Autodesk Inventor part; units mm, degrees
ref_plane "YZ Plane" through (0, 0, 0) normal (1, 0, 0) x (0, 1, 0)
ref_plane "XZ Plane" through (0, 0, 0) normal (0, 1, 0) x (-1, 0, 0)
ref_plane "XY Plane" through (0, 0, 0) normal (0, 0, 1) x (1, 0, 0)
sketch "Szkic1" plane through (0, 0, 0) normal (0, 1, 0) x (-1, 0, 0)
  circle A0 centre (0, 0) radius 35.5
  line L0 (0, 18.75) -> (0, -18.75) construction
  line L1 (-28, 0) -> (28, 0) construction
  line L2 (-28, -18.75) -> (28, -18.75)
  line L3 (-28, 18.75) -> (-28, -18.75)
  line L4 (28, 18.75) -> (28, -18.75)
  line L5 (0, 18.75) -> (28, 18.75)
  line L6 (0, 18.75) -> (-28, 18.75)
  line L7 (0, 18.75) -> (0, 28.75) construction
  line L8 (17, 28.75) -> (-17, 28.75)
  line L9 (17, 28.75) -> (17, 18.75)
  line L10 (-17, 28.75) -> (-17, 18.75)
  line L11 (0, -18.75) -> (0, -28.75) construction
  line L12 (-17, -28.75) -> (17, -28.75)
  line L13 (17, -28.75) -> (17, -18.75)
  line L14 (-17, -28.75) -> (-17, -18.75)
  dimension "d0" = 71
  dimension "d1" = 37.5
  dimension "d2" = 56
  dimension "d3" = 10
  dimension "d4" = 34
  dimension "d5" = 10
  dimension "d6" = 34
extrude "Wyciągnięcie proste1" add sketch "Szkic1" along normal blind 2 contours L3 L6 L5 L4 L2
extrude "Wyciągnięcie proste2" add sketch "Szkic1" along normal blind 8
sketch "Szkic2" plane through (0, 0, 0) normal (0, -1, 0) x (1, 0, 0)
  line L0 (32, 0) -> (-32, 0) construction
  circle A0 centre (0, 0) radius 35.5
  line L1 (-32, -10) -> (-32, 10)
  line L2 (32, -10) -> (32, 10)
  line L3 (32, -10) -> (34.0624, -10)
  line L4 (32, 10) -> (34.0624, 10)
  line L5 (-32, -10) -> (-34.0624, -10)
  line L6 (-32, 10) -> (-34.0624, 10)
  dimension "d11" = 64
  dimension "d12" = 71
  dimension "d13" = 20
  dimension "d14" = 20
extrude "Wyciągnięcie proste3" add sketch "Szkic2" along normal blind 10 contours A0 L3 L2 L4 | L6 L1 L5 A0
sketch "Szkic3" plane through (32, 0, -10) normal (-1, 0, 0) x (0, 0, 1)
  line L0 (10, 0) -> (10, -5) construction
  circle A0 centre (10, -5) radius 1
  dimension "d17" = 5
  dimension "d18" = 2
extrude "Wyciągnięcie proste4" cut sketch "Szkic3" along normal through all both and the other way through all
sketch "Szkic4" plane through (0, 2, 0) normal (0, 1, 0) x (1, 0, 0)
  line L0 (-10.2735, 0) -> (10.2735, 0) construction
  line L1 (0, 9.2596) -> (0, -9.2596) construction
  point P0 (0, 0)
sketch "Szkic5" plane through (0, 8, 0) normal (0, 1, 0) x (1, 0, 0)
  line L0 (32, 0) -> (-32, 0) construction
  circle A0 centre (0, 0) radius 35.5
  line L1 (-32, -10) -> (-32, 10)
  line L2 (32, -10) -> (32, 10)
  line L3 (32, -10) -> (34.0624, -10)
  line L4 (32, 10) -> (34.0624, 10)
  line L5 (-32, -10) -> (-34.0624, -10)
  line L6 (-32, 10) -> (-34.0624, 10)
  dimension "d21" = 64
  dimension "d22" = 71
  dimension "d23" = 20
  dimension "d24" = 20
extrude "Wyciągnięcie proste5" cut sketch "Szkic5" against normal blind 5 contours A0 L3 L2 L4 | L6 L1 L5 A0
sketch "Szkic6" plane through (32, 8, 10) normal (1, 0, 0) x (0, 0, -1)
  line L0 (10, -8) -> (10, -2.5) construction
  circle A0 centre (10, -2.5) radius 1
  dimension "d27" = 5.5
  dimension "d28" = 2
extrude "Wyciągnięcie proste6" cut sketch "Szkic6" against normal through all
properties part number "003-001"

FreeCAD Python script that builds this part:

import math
import FreeCAD as App
import Part
import Sketcher
from FreeCAD import Vector

doc = App.newDocument("Part")
params = doc.addObject("Spreadsheet::Sheet", "Params")
for row, (alias, value) in enumerate([
    ("sketch1_width", "56 mm"),
    ("sketch1_height", "37.5 mm"),
    ("pad1_length", "2 mm"),
    ("sketch2_diameter", "71 mm"),
    ("sketch2_width", "34 mm"),
    ("sketch2_height", "10 mm"),
    ("sketch2_height2", "37.5 mm"),
    ("pad2_length", "8 mm"),
    ("sketch3_radius", "35.5 mm"),
    ("sketch3_height", "20 mm"),
    ("pad3_length", "10 mm"),
    ("sketch4_diameter", "2 mm"),
    ("sketch5_radius", "35.5 mm"),
    ("sketch5_height", "20 mm"),
    ("pocket2_length", "5 mm"),
    ("sketch6_diameter", "2 mm"),
], start=1):
    params.set(f"A{row}", alias)
    params.set(f"B{row}", "=" + value)
    params.setAlias(f"B{row}", alias)

body = doc.addObject("PartDesign::Body", "Body")

# Sketch on XZ plane
sketch1 = doc.addObject("Sketcher::SketchObject", "Sketch")
body.addObject(sketch1)
sketch1.AttachmentSupport = (doc.XZ_Plane, [""])
sketch1.MapMode = "FlatFace"
sketch1.addGeometry(Part.LineSegment(Vector(28, 19, 0), Vector(28, -19, 0)), False)
sketch1.addGeometry(Part.LineSegment(Vector(28, -19, 0), Vector(-28, -19, 0)), False)
sketch1.addGeometry(Part.LineSegment(Vector(-28, -19, 0), Vector(-28, 19, 0)), False)
sketch1.addGeometry(Part.LineSegment(Vector(-28, 19, 0), Vector(28, 19, 0)), False)
sketch1.addConstraint(Sketcher.Constraint("Coincident", 0, 2, 1, 1))
sketch1.addConstraint(Sketcher.Constraint("Coincident", 1, 2, 2, 1))
sketch1.addConstraint(Sketcher.Constraint("Coincident", 2, 2, 3, 1))
sketch1.addConstraint(Sketcher.Constraint("Coincident", 3, 2, 0, 1))
sketch1.addConstraint(Sketcher.Constraint("Vertical", 0))
sketch1.addConstraint(Sketcher.Constraint("Horizontal", 1))
sketch1.addConstraint(Sketcher.Constraint("Vertical", 2))
sketch1.addConstraint(Sketcher.Constraint("Horizontal", 3))
sketch1.addConstraint(Sketcher.Constraint("Symmetric", 0, 2, 2, 2, -1, 1))
sketch1.addConstraint(Sketcher.Constraint("DistanceX", 1, 2, 1, 1, 56.0))
sketch1.addConstraint(Sketcher.Constraint("DistanceY", 0, 2, 0, 1, 37.5))
sketch1.setExpression("Constraints[9]", "Params.sketch1_width")
sketch1.setExpression("Constraints[10]", "Params.sketch1_height")
pad1 = doc.addObject("PartDesign::Pad", "Pad")
body.addObject(pad1)
pad1.Profile = sketch1
pad1.setExpression("Length", "Params.pad1_length")
pad1.Reversed = True

# Sketch on XZ plane
sketch2 = doc.addObject("Sketcher::SketchObject", "Sketch001")
body.addObject(sketch2)
sketch2.AttachmentSupport = (doc.XZ_Plane, [""])
sketch2.MapMode = "FlatFace"
sketch2.addGeometry(Part.Circle(Vector(0, 0, 0), Vector(0, 0, 1), 36), False)
sketch2.addGeometry(Part.LineSegment(Vector(17, -19, 0), Vector(28, -19, 0)), False)
sketch2.addGeometry(Part.LineSegment(Vector(28, -19, 0), Vector(28, 19, 0)), False)
sketch2.addGeometry(Part.LineSegment(Vector(28, 19, 0), Vector(17, 19, 0)), False)
sketch2.addGeometry(Part.LineSegment(Vector(17, 19, 0), Vector(17, 29, 0)), False)
sketch2.addGeometry(Part.LineSegment(Vector(17, 29, 0), Vector(-17, 29, 0)), False)
sketch2.addGeometry(Part.LineSegment(Vector(-17, 29, 0), Vector(-17, 19, 0)), False)
sketch2.addGeometry(Part.LineSegment(Vector(-17, 19, 0), Vector(-28, 19, 0)), False)
sketch2.addGeometry(Part.LineSegment(Vector(-28, 19, 0), Vector(-28, -19, 0)), False)
sketch2.addGeometry(Part.LineSegment(Vector(-28, -19, 0), Vector(-17, -19, 0)), False)
sketch2.addGeometry(Part.LineSegment(Vector(-17, -19, 0), Vector(-17, -29, 0)), False)
sketch2.addGeometry(Part.LineSegment(Vector(-17, -29, 0), Vector(17, -29, 0)), False)
sketch2.addGeometry(Part.LineSegment(Vector(17, -29, 0), Vector(17, -19, 0)), False)
sketch2.addConstraint(Sketcher.Constraint("Coincident", 1, 2, 2, 1))
sketch2.addConstraint(Sketcher.Constraint("Coincident", 2, 2, 3, 1))
sketch2.addConstraint(Sketcher.Constraint("Coincident", 3, 2, 4, 1))
sketch2.addConstraint(Sketcher.Constraint("Coincident", 4, 2, 5, 1))
sketch2.addConstraint(Sketcher.Constraint("Coincident", 5, 2, 6, 1))
sketch2.addConstraint(Sketcher.Constraint("Coincident", 6, 2, 7, 1))
sketch2.addConstraint(Sketcher.Constraint("Coincident", 7, 2, 8, 1))
sketch2.addConstraint(Sketcher.Constraint("Coincident", 8, 2, 9, 1))
sketch2.addConstraint(Sketcher.Constraint("Coincident", 9, 2, 10, 1))
sketch2.addConstraint(Sketcher.Constraint("Coincident", 10, 2, 11, 1))
sketch2.addConstraint(Sketcher.Constraint("Coincident", 11, 2, 12, 1))
sketch2.addConstraint(Sketcher.Constraint("Coincident", 12, 2, 1, 1))
sketch2.addConstraint(Sketcher.Constraint("Horizontal", 1))
sketch2.addConstraint(Sketcher.Constraint("Vertical", 2))
sketch2.addConstraint(Sketcher.Constraint("Horizontal", 3))
sketch2.addConstraint(Sketcher.Constraint("Vertical", 4))
sketch2.addConstraint(Sketcher.Constraint("Horizontal", 5))
sketch2.addConstraint(Sketcher.Constraint("Vertical", 6))
sketch2.addConstraint(Sketcher.Constraint("Horizontal", 7))
sketch2.addConstraint(Sketcher.Constraint("Vertical", 8))
sketch2.addConstraint(Sketcher.Constraint("Horizontal", 9))
sketch2.addConstraint(Sketcher.Constraint("Vertical", 10))
sketch2.addConstraint(Sketcher.Constraint("Horizontal", 11))
sketch2.addConstraint(Sketcher.Constraint("Vertical", 12))
sketch2.addConstraint(Sketcher.Constraint("Coincident", 0, 3, -1, 1))
sketch2.addConstraint(Sketcher.Constraint("Symmetric", 1, 2, 7, 2, -1, 1))
sketch2.addConstraint(Sketcher.Constraint("Symmetric", 3, 2, 9, 2, -1, 1))
sketch2.addConstraint(Sketcher.Constraint("Symmetric", 5, 2, 11, 2, -1, 1))
sketch2.addConstraint(Sketcher.Constraint("Symmetric", 3, 2, 6, 2, -2))
sketch2.addConstraint(Sketcher.Constraint("Diameter", 0, 71.0))
sketch2.addConstraint(Sketcher.Constraint("DistanceX", 5, 2, 5, 1, 34.0))
sketch2.addConstraint(Sketcher.Constraint("DistanceY", 4, 1, 4, 2, 10.0))
sketch2.addConstraint(Sketcher.Constraint("DistanceY", 2, 1, 2, 2, 37.5))
sketch2.addConstraint(Sketcher.Constraint("DistanceX", 8, 2, 1, 2, 56.0))
sketch2.setExpression("Constraints[29]", "Params.sketch2_diameter")
sketch2.setExpression("Constraints[30]", "Params.sketch2_width")
sketch2.setExpression("Constraints[31]", "Params.sketch2_height")
sketch2.setExpression("Constraints[32]", "Params.sketch2_height2")
pad2 = doc.addObject("PartDesign::Pad", "Pad001")
body.addObject(pad2)
pad2.Profile = sketch2
pad2.setExpression("Length", "Params.pad2_length")
pad2.Reversed = True

# Sketch on XZ plane
sketch3 = doc.addObject("Sketcher::SketchObject", "Sketch002")
body.addObject(sketch3)
sketch3.AttachmentSupport = (doc.XZ_Plane, [""])
sketch3.MapMode = "FlatFace"
sketch3.addGeometry(Part.ArcOfCircle(Part.Circle(Vector(0, 0, 0), Vector(0, 0, 1), 35.5), math.radians(-16), math.radians(16)), False)
sketch3.addGeometry(Part.LineSegment(Vector(34.1, 10, 0), Vector(32, 10, 0)), False)
sketch3.addGeometry(Part.LineSegment(Vector(32, 10, 0), Vector(32, -10, 0)), False)
sketch3.addGeometry(Part.LineSegment(Vector(32, -10, 0), Vector(34.1, -10, 0)), False)
sketch3.addGeometry(Part.LineSegment(Vector(-32, 10, 0), Vector(-34.1, 10, 0)), False)
sketch3.addGeometry(Part.ArcOfCircle(Part.Circle(Vector(0, 0, 0), Vector(0, 0, 1), 35.5), math.radians(164), math.radians(196)), False)
sketch3.addGeometry(Part.LineSegment(Vector(-34.1, -10, 0), Vector(-32, -10, 0)), False)
sketch3.addGeometry(Part.LineSegment(Vector(-32, -10, 0), Vector(-32, 10, 0)), False)
sketch3.addConstraint(Sketcher.Constraint("Coincident", 0, 2, 1, 1))
sketch3.addConstraint(Sketcher.Constraint("Coincident", 1, 2, 2, 1))
sketch3.addConstraint(Sketcher.Constraint("Coincident", 2, 2, 3, 1))
sketch3.addConstraint(Sketcher.Constraint("Coincident", 3, 2, 0, 1))
sketch3.addConstraint(Sketcher.Constraint("Coincident", 4, 2, 5, 1))
sketch3.addConstraint(Sketcher.Constraint("Coincident", 5, 2, 6, 1))
sketch3.addConstraint(Sketcher.Constraint("Coincident", 6, 2, 7, 1))
sketch3.addConstraint(Sketcher.Constraint("Coincident", 7, 2, 4, 1))
sketch3.addConstraint(Sketcher.Constraint("Horizontal", 1))
sketch3.addConstraint(Sketcher.Constraint("Vertical", 2))
sketch3.addConstraint(Sketcher.Constraint("Horizontal", 3))
sketch3.addConstraint(Sketcher.Constraint("Horizontal", 4))
sketch3.addConstraint(Sketcher.Constraint("Horizontal", 6))
sketch3.addConstraint(Sketcher.Constraint("Vertical", 7))
sketch3.addConstraint(Sketcher.Constraint("Coincident", 0, 3, -1, 1))
sketch3.addConstraint(Sketcher.Constraint("Coincident", 5, 3, -1, 1))
sketch3.addConstraint(Sketcher.Constraint("Equal", 0, 5))
sketch3.addConstraint(Sketcher.Constraint("Symmetric", 1, 2, 6, 2, -1, 1))
sketch3.addConstraint(Sketcher.Constraint("Horizontal", 1, 2, 4, 2))
sketch3.addConstraint(Sketcher.Constraint("Horizontal", 3, 2, 5, 2))
sketch3.addConstraint(Sketcher.Constraint("Radius", 0, 35.5))
sketch3.addConstraint(Sketcher.Constraint("DistanceY", 2, 2, 2, 1, 20.0))
sketch3.addConstraint(Sketcher.Constraint("DistanceX", 6, 2, 2, 2, 64.0))
sketch3.setExpression("Constraints[20]", "Params.sketch3_radius")
sketch3.setExpression("Constraints[21]", "Params.sketch3_height")
pad3 = doc.addObject("PartDesign::Pad", "Pad002")
body.addObject(pad3)
pad3.Profile = sketch3
pad3.setExpression("Length", "Params.pad3_length")

# Sketch on YZ plane
sketch4 = doc.addObject("Sketcher::SketchObject", "Sketch003")
body.addObject(sketch4)
sketch4.AttachmentSupport = (doc.YZ_Plane, [""])
sketch4.MapMode = "FlatFace"
sketch4.AttachmentOffset = App.Placement(Vector(0, 0, 32), App.Rotation())
sketch4.addGeometry(Part.Circle(Vector(-5, 0, 0), Vector(0, 0, 1), 1), False)
sketch4.addConstraint(Sketcher.Constraint("PointOnObject", 0, 3, -1))
sketch4.addConstraint(Sketcher.Constraint("Diameter", 0, 2.0))
sketch4.addConstraint(Sketcher.Constraint("DistanceX", 0, 3, -1, 1, 5.0))
sketch4.setExpression("Constraints[1]", "Params.sketch4_diameter")
pocket1 = doc.addObject("PartDesign::Pocket", "Pocket")
body.addObject(pocket1)
pocket1.Profile = sketch4
pocket1.Type = "ThroughAll"
pocket1.Midplane = True

# Sketch on XZ plane
sketch5 = doc.addObject("Sketcher::SketchObject", "Sketch004")
body.addObject(sketch5)
sketch5.AttachmentSupport = (doc.XZ_Plane, [""])
sketch5.MapMode = "FlatFace"
sketch5.AttachmentOffset = App.Placement(Vector(0, 0, -8), App.Rotation())
sketch5.addGeometry(Part.ArcOfCircle(Part.Circle(Vector(0, 0, 0), Vector(0, 0, 1), 35.5), math.radians(-16), math.radians(16)), False)
sketch5.addGeometry(Part.LineSegment(Vector(34.1, -10, 0), Vector(32, -10, 0)), False)
sketch5.addGeometry(Part.LineSegment(Vector(32, -10, 0), Vector(32, 10, 0)), False)
sketch5.addGeometry(Part.LineSegment(Vector(32, 10, 0), Vector(34.1, 10, 0)), False)
sketch5.addGeometry(Part.LineSegment(Vector(-32, -10, 0), Vector(-34.1, -10, 0)), False)
sketch5.addGeometry(Part.ArcOfCircle(Part.Circle(Vector(0, 0, 0), Vector(0, 0, 1), 35.5), math.radians(164), math.radians(196)), False)
sketch5.addGeometry(Part.LineSegment(Vector(-34.1, 10, 0), Vector(-32, 10, 0)), False)
sketch5.addGeometry(Part.LineSegment(Vector(-32, 10, 0), Vector(-32, -10, 0)), False)
sketch5.addConstraint(Sketcher.Constraint("Coincident", 0, 1, 1, 1))
sketch5.addConstraint(Sketcher.Constraint("Coincident", 1, 2, 2, 1))
sketch5.addConstraint(Sketcher.Constraint("Coincident", 2, 2, 3, 1))
sketch5.addConstraint(Sketcher.Constraint("Coincident", 3, 2, 0, 2))
sketch5.addConstraint(Sketcher.Constraint("Coincident", 4, 2, 5, 2))
sketch5.addConstraint(Sketcher.Constraint("Coincident", 5, 1, 6, 1))
sketch5.addConstraint(Sketcher.Constraint("Coincident", 6, 2, 7, 1))
sketch5.addConstraint(Sketcher.Constraint("Coincident", 7, 2, 4, 1))
sketch5.addConstraint(Sketcher.Constraint("Horizontal", 1))
sketch5.addConstraint(Sketcher.Constraint("Vertical", 2))
sketch5.addConstraint(Sketcher.Constraint("Horizontal", 3))
sketch5.addConstraint(Sketcher.Constraint("Horizontal", 4))
sketch5.addConstraint(Sketcher.Constraint("Horizontal", 6))
sketch5.addConstraint(Sketcher.Constraint("Vertical", 7))
sketch5.addConstraint(Sketcher.Constraint("Coincident", 0, 3, -1, 1))
sketch5.addConstraint(Sketcher.Constraint("Coincident", 5, 3, -1, 1))
sketch5.addConstraint(Sketcher.Constraint("Equal", 0, 5))
sketch5.addConstraint(Sketcher.Constraint("Symmetric", 1, 2, 6, 2, -1, 1))
sketch5.addConstraint(Sketcher.Constraint("Horizontal", 1, 2, 4, 2))
sketch5.addConstraint(Sketcher.Constraint("Horizontal", 3, 2, 5, 1))
sketch5.addConstraint(Sketcher.Constraint("Radius", 0, 35.5))
sketch5.addConstraint(Sketcher.Constraint("DistanceY", 2, 1, 2, 2, 20.0))
sketch5.addConstraint(Sketcher.Constraint("DistanceX", 6, 2, 2, 2, 64.0))
sketch5.setExpression("Constraints[20]", "Params.sketch5_radius")
sketch5.setExpression("Constraints[21]", "Params.sketch5_height")
pocket2 = doc.addObject("PartDesign::Pocket", "Pocket001")
body.addObject(pocket2)
pocket2.Profile = sketch5
pocket2.setExpression("Length", "Params.pocket2_length")
pocket2.Reversed = True

# Sketch on YZ plane
sketch6 = doc.addObject("Sketcher::SketchObject", "Sketch005")
body.addObject(sketch6)
sketch6.AttachmentSupport = (doc.YZ_Plane, [""])
sketch6.MapMode = "FlatFace"
sketch6.AttachmentOffset = App.Placement(Vector(0, 0, 32), App.Rotation())
sketch6.addGeometry(Part.Circle(Vector(5.5, 0, 0), Vector(0, 0, 1), 1), False)
sketch6.addConstraint(Sketcher.Constraint("PointOnObject", 0, 3, -1))
sketch6.addConstraint(Sketcher.Constraint("Diameter", 0, 2.0))
sketch6.addConstraint(Sketcher.Constraint("DistanceX", -1, 1, 0, 3, 5.5))
sketch6.setExpression("Constraints[1]", "Params.sketch6_diameter")
pocket3 = doc.addObject("PartDesign::Pocket", "Pocket002")
body.addObject(pocket3)
pocket3.Profile = sketch6
pocket3.Type = "ThroughAll"

doc.recompute()
